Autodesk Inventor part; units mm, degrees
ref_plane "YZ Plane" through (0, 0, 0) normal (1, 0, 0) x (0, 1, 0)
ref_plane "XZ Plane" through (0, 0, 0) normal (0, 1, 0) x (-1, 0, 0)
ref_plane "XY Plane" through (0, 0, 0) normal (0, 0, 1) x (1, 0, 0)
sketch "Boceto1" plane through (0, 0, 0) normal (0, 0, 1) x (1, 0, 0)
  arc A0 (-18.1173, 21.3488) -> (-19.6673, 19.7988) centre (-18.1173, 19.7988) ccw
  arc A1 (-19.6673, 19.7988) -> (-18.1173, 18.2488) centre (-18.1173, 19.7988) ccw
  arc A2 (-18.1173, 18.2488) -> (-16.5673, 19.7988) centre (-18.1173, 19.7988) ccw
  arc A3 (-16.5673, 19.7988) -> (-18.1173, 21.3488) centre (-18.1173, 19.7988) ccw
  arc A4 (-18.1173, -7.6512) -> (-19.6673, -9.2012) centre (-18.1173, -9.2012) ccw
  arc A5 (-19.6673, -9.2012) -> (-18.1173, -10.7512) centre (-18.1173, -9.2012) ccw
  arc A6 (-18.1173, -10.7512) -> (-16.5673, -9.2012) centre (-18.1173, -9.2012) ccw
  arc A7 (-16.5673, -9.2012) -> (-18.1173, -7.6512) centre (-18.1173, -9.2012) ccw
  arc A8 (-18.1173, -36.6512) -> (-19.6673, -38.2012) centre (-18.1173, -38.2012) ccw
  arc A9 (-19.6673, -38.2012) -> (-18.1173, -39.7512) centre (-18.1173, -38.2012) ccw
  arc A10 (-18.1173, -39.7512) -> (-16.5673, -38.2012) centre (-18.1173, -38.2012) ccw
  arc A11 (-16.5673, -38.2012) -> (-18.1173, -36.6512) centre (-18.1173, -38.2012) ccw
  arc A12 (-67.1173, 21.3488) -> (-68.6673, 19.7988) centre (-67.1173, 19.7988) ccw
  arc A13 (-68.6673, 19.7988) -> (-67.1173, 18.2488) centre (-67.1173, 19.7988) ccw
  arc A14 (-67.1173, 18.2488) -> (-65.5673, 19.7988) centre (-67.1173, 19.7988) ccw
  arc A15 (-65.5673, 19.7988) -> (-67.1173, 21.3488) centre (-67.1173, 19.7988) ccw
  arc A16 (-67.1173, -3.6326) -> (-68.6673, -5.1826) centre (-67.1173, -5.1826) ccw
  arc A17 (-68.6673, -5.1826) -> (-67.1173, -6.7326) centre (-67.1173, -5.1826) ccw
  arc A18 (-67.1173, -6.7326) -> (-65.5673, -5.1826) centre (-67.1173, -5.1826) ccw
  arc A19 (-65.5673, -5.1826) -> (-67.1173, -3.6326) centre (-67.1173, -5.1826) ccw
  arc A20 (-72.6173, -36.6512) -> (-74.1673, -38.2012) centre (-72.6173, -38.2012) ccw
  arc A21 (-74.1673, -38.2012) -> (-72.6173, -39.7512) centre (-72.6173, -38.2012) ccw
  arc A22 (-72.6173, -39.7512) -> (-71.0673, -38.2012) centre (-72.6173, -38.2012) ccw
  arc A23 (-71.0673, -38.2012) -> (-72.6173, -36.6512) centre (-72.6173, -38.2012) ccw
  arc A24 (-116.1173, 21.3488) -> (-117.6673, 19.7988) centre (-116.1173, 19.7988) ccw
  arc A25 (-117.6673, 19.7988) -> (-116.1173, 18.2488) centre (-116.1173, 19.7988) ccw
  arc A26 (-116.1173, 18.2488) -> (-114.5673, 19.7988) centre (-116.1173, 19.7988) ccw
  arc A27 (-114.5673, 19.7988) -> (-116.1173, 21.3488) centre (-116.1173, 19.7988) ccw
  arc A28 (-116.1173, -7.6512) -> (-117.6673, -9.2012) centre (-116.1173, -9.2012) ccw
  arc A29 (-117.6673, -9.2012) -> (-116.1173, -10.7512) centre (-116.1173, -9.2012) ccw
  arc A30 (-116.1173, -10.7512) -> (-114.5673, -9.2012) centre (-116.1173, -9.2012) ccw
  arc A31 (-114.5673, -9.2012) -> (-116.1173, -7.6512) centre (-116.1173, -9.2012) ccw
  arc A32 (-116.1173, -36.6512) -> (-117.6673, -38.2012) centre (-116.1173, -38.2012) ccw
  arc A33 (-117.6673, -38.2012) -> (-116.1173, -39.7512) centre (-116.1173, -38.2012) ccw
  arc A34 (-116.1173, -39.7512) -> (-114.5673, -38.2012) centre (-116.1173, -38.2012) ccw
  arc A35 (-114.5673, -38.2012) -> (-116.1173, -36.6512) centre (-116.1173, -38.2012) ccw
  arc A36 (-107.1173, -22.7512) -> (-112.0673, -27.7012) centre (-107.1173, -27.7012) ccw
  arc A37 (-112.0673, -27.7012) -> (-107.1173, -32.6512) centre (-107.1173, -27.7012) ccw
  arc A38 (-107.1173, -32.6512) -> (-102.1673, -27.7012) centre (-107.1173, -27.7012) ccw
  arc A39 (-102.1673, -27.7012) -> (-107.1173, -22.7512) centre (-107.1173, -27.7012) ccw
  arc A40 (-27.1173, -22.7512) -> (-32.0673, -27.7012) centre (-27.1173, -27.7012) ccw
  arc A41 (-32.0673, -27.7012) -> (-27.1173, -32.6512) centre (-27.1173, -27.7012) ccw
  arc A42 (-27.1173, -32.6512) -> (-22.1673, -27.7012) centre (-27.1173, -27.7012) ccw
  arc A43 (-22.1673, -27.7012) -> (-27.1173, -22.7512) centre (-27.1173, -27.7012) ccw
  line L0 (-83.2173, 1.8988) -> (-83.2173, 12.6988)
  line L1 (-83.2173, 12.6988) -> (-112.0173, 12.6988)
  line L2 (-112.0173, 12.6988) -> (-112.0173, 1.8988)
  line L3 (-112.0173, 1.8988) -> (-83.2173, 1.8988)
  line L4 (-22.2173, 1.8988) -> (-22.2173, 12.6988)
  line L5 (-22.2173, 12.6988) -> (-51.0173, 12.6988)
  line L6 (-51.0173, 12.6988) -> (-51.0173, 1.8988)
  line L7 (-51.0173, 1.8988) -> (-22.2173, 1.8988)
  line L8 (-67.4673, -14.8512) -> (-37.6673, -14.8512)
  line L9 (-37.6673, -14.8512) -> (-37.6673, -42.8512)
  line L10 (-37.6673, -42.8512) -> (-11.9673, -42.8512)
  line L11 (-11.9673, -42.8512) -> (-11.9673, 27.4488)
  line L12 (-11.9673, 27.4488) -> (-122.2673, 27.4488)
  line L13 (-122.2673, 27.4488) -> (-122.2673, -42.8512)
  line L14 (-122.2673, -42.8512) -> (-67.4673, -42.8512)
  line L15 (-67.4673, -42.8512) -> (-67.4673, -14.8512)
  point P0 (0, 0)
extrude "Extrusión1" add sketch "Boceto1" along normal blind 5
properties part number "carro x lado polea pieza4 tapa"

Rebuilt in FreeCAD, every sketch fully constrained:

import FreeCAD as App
import Part
import Sketcher
from FreeCAD import Vector
Q = App.Units.Quantity


def add_polygon(sketch, points):
    """Adds a closed chain of lines whose ends are joined by coincident constraints."""
    first, n = sketch.GeometryCount, len(points)
    for a, b in zip(points, points[1:] + points[:1]):
        sketch.addGeometry(Part.LineSegment(App.Vector(*a, 0), App.Vector(*b, 0)), False)
    for i in range(n):
        sketch.addConstraint(Sketcher.Constraint("Coincident", first + i, 2, first + (i + 1) % n, 1))

doc = App.newDocument("Part")
body = doc.addObject("PartDesign::Body", "Body")

# Sketch on XY plane
sketch1 = body.newObject("Sketcher::SketchObject", "Sketch")
sketch1.AttachmentSupport = (doc.getObject("XY_Plane"), [""])
sketch1.MapMode = "FlatFace"
add_polygon(sketch1, [(-67.5, -42.9), (-67.5, -14.9), (-37.7, -14.9), (-37.7, -42.9), (-12, -42.9), (-12, 27.4), (-122.3, 27.4), (-122.3, -42.9)])  # lines 0-7
sketch1.addGeometry(Part.Circle(Vector(-116.1, -38.2, 0), Vector(0, 0, 1), 1.5), False)  # 8
sketch1.addGeometry(Part.Circle(Vector(-107.1, -27.7, 0), Vector(0, 0, 1), 4.9), False)  # 9
sketch1.addGeometry(Part.Circle(Vector(-72.6, -38.2, 0), Vector(0, 0, 1), 1.5), False)  # 10
sketch1.addGeometry(Part.Circle(Vector(-116.1, -9.2, 0), Vector(0, 0, 1), 1.5), False)  # 11
sketch1.addGeometry(Part.Circle(Vector(-18.1, -38.2, 0), Vector(0, 0, 1), 1.6), False)  # 12
sketch1.addGeometry(Part.Circle(Vector(-27.1, -27.7, 0), Vector(0, 0, 1), 4.9), False)  # 13
sketch1.addGeometry(Part.Circle(Vector(-18.1, -9.2, 0), Vector(0, 0, 1), 1.5), False)  # 14
add_polygon(sketch1, [(-83.2, 12.7), (-83.2, 1.9), (-112, 1.9), (-112, 12.7)])  # lines 15-18
sketch1.addGeometry(Part.Circle(Vector(-67.1, -5.2, 0), Vector(0, 0, 1), 1.5), False)  # 19
sketch1.addGeometry(Part.Circle(Vector(-116.1, 19.8, 0), Vector(0, 0, 1), 1.6), False)  # 20
sketch1.addGeometry(Part.Circle(Vector(-67.1, 19.8, 0), Vector(0, 0, 1), 1.6), False)  # 21
add_polygon(sketch1, [(-22.2, 12.7), (-22.2, 1.9), (-51, 1.9), (-51, 12.7)])  # lines 22-25
sketch1.addGeometry(Part.Circle(Vector(-18.1, 19.8, 0), Vector(0, 0, 1), 1.6), False)  # 26
sketch1.addConstraint(Sketcher.Constraint("Vertical", 0))
sketch1.addConstraint(Sketcher.Constraint("Horizontal", 1))
sketch1.addConstraint(Sketcher.Constraint("Vertical", 2))
sketch1.addConstraint(Sketcher.Constraint("Horizontal", 3))
sketch1.addConstraint(Sketcher.Constraint("Vertical", 4))
sketch1.addConstraint(Sketcher.Constraint("Horizontal", 5))
sketch1.addConstraint(Sketcher.Constraint("Vertical", 6))
sketch1.addConstraint(Sketcher.Constraint("Horizontal", 7))
sketch1.addConstraint(Sketcher.Constraint("Vertical", 15))
sketch1.addConstraint(Sketcher.Constraint("Horizontal", 16))
sketch1.addConstraint(Sketcher.Constraint("Vertical", 17))
sketch1.addConstraint(Sketcher.Constraint("Horizontal", 18))
sketch1.addConstraint(Sketcher.Constraint("Vertical", 22))
sketch1.addConstraint(Sketcher.Constraint("Horizontal", 23))
sketch1.addConstraint(Sketcher.Constraint("Vertical", 24))
sketch1.addConstraint(Sketcher.Constraint("Horizontal", 25))
sketch1.addConstraint(Sketcher.Constraint("Equal", 8, 10))
sketch1.addConstraint(Sketcher.Constraint("Equal", 10, 11))
sketch1.addConstraint(Sketcher.Constraint("Equal", 11, 12))
sketch1.addConstraint(Sketcher.Constraint("Equal", 9, 13))
sketch1.addConstraint(Sketcher.Constraint("Equal", 12, 14))
sketch1.addConstraint(Sketcher.Constraint("Equal", 14, 19))
sketch1.addConstraint(Sketcher.Constraint("Equal", 19, 20))
sketch1.addConstraint(Sketcher.Constraint("Equal", 20, 21))
sketch1.addConstraint(Sketcher.Constraint("Equal", 21, 26))
sketch1.addConstraint(Sketcher.Constraint("Horizontal", 8, 3, 10, 3))
sketch1.addConstraint(Sketcher.Constraint("Horizontal", 10, 3, 12, 3))
sketch1.addConstraint(Sketcher.Constraint("Horizontal", 9, 3, 13, 3))
sketch1.addConstraint(Sketcher.Constraint("Horizontal", 11, 3, 14, 3))
sketch1.addConstraint(Sketcher.Constraint("Horizontal", 20, 3, 21, 3))
sketch1.addConstraint(Sketcher.Constraint("Horizontal", 21, 3, 26, 3))
sketch1.addConstraint(Sketcher.Constraint("Horizontal", 3, 2, 6, 2))
sketch1.addConstraint(Sketcher.Constraint("Horizontal", 16, 2, 22, 2))
sketch1.addConstraint(Sketcher.Constraint("Horizontal", 18, 2, 24, 2))
sketch1.addConstraint(Sketcher.Constraint("Vertical", 8, 3, 11, 3))
sketch1.addConstraint(Sketcher.Constraint("Vertical", 12, 3, 14, 3))
sketch1.addConstraint(Sketcher.Constraint("Vertical", 11, 3, 20, 3))
sketch1.addConstraint(Sketcher.Constraint("Vertical", 19, 3, 21, 3))
sketch1.addConstraint(Sketcher.Constraint("Vertical", 14, 3, 26, 3))
sketch1.addConstraint(Sketcher.Constraint("Equal", 18, 23))
sketch1.addConstraint(Sketcher.Constraint("Diameter", 8, Q("3.1 mm")))
sketch1.addConstraint(Sketcher.Constraint("Diameter", 9, Q("9.9 mm")))
sketch1.addConstraint(Sketcher.Constraint("DistanceY", 0, 1, 0, 2, Q("28 mm")))
sketch1.addConstraint(Sketcher.Constraint("DistanceX", 1, 1, 1, 2, Q("29.8 mm")))
sketch1.addConstraint(Sketcher.Constraint("DistanceX", 3, 1, 3, 2, Q("25.7 mm")))
sketch1.addConstraint(Sketcher.Constraint("DistanceX", 5, 2, 5, 1, Q("110.3 mm")))
sketch1.addConstraint(Sketcher.Constraint("DistanceX", 16, 2, 16, 1, Q("28.8 mm")))
sketch1.addConstraint(Sketcher.Constraint("DistanceY", 4, 1, 4, 2, Q("70.3 mm")))
sketch1.addConstraint(Sketcher.Constraint("DistanceY", 15, 2, 15, 1, Q("10.8 mm")))
sketch1.addConstraint(Sketcher.Constraint("DistanceX", 8, 3, 9, 3, Q("9 mm")))
sketch1.addConstraint(Sketcher.Constraint("DistanceY", 8, 3, 11, 3, Q("29 mm")))
sketch1.addConstraint(Sketcher.Constraint("DistanceX", 9, 3, 12, 3, Q("89 mm")))
sketch1.addConstraint(Sketcher.Constraint("DistanceX", 13, 3, 12, 3, Q("9 mm")))
sketch1.addConstraint(Sketcher.Constraint("DistanceX", 9, 3, 19, 3, Q("40 mm")))
sketch1.addConstraint(Sketcher.Constraint("DistanceY", 11, 3, 20, 3, Q("29 mm")))
sketch1.addConstraint(Sketcher.Constraint("DistanceY", 8, 3, 9, 3, Q("10.5 mm")))
sketch1.addConstraint(Sketcher.Constraint("DistanceX", 9, 3, 10, 3, Q("34.5 mm")))
sketch1.addConstraint(Sketcher.Constraint("DistanceX", 15, 2, 19, 3, Q("16.1 mm")))
sketch1.addConstraint(Sketcher.Constraint("DistanceY", 15, 2, 21, 3, Q("17.9 mm")))
sketch1.addConstraint(Sketcher.Constraint("DistanceX", 22, 2, 14, 3, Q("4.1 mm")))
sketch1.addConstraint(Sketcher.Constraint("DistanceX", 0, 2, 19, 3, Q("0.35 mm")))
sketch1.addConstraint(Sketcher.Constraint("DistanceY", 10, 3, 0, 2, Q("23.35 mm")))
sketch1.addConstraint(Sketcher.Constraint("DistanceX", 8, 3, -1, 1, Q("116.1173 mm")))
sketch1.addConstraint(Sketcher.Constraint("DistanceY", 8, 3, -1, 1, Q("38.2012 mm")))
sketch1.addConstraint(Sketcher.Constraint("DistanceY", 19, 3, -1, 1, Q("5.1826 mm")))
pad1 = body.newObject("PartDesign::Pad", "Pad")
pad1.Profile = sketch1
pad1.Length = 5

doc.recompute()
